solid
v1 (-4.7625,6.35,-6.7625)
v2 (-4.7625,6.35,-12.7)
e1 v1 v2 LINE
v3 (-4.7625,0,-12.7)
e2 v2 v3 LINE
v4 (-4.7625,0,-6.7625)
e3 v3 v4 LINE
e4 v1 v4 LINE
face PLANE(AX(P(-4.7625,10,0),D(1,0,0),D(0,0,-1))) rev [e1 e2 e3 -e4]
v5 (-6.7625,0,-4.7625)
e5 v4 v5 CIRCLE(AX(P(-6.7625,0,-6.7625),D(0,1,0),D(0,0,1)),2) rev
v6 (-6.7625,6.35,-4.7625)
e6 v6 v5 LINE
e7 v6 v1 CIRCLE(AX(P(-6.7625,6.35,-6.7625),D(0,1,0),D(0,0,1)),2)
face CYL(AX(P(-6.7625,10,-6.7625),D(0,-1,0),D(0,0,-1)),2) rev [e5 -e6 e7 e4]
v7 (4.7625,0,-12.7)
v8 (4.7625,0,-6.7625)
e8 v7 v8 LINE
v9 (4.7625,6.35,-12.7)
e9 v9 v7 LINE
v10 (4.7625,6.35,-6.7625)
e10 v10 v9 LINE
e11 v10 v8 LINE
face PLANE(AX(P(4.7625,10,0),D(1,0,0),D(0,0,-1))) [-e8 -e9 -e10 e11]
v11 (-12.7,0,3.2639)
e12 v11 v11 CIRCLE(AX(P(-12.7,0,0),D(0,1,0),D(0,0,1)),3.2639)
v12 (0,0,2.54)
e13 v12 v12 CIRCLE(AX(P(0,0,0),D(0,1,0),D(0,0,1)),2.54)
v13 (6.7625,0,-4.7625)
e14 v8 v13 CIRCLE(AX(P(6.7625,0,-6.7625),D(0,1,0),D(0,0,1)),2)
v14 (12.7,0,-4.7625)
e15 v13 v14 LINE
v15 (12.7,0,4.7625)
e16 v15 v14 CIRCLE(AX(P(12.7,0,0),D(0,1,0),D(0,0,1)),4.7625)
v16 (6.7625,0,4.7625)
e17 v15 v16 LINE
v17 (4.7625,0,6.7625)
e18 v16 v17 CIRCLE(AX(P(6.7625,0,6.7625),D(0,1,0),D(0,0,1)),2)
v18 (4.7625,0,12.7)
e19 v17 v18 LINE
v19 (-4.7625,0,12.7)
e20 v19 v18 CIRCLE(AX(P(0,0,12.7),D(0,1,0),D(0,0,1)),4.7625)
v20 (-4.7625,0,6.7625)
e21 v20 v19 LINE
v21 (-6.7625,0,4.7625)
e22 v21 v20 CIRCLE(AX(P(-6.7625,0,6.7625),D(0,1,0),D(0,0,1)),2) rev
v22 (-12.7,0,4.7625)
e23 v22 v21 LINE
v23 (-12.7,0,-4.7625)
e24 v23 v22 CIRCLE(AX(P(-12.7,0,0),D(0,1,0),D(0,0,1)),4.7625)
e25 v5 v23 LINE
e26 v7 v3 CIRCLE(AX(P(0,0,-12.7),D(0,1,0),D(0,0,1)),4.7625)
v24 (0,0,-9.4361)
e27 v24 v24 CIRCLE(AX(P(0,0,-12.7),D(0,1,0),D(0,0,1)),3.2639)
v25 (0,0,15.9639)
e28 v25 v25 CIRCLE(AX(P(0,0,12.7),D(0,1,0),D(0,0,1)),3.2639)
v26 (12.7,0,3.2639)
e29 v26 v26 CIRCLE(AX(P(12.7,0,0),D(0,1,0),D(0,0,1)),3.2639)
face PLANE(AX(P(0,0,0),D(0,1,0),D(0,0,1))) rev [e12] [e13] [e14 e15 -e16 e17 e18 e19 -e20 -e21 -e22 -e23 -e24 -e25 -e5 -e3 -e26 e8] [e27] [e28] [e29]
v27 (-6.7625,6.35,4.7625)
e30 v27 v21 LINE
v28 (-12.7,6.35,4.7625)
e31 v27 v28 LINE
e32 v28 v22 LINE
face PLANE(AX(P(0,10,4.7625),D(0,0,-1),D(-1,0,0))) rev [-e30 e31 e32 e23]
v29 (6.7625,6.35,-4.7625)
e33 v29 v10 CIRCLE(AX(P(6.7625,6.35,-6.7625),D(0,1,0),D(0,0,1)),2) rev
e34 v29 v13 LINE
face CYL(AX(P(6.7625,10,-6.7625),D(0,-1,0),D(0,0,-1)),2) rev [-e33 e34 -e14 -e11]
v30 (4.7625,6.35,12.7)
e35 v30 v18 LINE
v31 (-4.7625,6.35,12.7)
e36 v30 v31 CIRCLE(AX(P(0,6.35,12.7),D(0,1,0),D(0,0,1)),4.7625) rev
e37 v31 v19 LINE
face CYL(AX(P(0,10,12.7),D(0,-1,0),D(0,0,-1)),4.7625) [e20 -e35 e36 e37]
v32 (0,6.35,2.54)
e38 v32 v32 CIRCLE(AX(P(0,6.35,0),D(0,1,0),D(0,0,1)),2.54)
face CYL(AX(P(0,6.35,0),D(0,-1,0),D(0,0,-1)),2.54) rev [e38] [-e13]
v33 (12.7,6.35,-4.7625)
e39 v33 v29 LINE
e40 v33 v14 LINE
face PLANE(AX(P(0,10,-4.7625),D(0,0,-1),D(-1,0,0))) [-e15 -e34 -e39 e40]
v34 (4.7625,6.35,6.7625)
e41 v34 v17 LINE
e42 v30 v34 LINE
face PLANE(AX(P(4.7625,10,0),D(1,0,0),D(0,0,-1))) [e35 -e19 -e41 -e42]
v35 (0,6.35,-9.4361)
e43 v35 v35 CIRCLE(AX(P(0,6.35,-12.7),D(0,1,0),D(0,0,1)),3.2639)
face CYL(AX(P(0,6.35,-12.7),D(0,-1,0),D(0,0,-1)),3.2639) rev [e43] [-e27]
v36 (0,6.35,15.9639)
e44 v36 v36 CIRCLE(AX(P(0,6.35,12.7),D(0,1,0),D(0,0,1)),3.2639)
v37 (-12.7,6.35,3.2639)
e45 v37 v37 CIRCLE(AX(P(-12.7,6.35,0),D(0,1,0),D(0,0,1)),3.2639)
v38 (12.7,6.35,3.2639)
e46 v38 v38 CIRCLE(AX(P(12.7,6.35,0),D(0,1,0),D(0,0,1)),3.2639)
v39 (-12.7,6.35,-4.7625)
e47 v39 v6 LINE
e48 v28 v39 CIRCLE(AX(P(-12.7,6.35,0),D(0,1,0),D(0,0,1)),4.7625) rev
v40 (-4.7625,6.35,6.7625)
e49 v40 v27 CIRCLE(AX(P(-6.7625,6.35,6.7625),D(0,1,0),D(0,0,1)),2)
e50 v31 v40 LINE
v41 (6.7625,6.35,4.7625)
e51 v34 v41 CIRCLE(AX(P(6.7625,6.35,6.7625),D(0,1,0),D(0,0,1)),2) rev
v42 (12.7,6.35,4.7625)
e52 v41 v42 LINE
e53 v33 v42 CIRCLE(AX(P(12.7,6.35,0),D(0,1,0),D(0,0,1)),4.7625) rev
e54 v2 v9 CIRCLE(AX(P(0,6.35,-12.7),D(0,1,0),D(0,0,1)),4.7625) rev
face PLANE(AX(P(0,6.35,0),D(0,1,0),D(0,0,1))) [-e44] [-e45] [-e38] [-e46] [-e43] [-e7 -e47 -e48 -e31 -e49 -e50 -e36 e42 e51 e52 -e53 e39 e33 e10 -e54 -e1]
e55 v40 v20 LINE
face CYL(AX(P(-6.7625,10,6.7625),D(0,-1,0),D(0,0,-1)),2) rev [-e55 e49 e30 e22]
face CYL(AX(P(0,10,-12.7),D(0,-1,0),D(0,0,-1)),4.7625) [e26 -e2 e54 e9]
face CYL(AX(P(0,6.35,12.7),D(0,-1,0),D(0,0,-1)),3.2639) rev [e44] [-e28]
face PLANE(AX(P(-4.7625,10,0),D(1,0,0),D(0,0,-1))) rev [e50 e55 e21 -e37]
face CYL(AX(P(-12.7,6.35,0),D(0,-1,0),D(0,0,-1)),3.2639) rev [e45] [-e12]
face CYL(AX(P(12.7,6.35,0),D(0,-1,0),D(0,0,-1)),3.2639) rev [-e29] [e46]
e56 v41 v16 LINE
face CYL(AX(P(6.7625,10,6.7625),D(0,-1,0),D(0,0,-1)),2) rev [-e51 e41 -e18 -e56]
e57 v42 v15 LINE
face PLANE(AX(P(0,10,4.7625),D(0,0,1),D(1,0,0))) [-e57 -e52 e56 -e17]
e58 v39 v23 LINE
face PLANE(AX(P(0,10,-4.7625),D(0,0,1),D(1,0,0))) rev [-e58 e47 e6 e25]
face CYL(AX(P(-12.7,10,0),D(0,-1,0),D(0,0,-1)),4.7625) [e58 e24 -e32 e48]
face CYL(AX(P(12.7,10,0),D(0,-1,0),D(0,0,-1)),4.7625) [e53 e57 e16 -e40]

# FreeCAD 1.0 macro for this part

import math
import FreeCAD as App
import Part
import Sketcher

V = App.Vector
Q = App.Units.Quantity

doc = App.newDocument("Part")
body = doc.addObject("PartDesign::Body", "Body")

# Sketch on XZ plane
sketch1 = body.newObject("Sketcher::SketchObject", "Sketch")
sketch1.AttachmentSupport = (doc.getObject("XZ_Plane"), [""])
sketch1.MapMode = "FlatFace"
sketch1.addGeometry(Part.Circle(V(0, 0, 0), V(0, 0, 1), 25.4), False)
sketch1.addGeometry(Part.Circle(V(0, -12.7, 0), V(0, 0, 1), 3.3), False)
sketch1.addGeometry(Part.Circle(V(-12.7, 0, 0), V(0, 0, 1), 3.3), False)
sketch1.addGeometry(Part.Circle(V(12.7, 0, 0), V(0, 0, 1), 3.3), False)
sketch1.addGeometry(Part.Circle(V(0, 0, 0), V(0, 0, 1), 2.5), False)
sketch1.addGeometry(Part.Circle(V(0, 12.7, 0), V(0, 0, 1), 3.3), False)
sketch1.addConstraint(Sketcher.Constraint("Coincident", 0, 3, -1, 1))
sketch1.addConstraint(Sketcher.Constraint("Coincident", 4, 3, -1, 1))
sketch1.addConstraint(Sketcher.Constraint("Equal", 1, 2))
sketch1.addConstraint(Sketcher.Constraint("Equal", 2, 3))
sketch1.addConstraint(Sketcher.Constraint("Equal", 3, 5))
sketch1.addConstraint(Sketcher.Constraint("Symmetric", 2, 3, 3, 3, -1, 1))
sketch1.addConstraint(Sketcher.Constraint("Symmetric", 1, 3, 5, 3, -1, 1))
sketch1.addConstraint(Sketcher.Constraint("PointOnObject", 1, 3, -2))
sketch1.addConstraint(Sketcher.Constraint("PointOnObject", 2, 3, -1))
sketch1.addConstraint(Sketcher.Constraint("Diameter", 0, Q("2 in")))
sketch1.addConstraint(Sketcher.Constraint("Diameter", 4, Q("0.2 in")))
sketch1.addConstraint(Sketcher.Constraint("Diameter", 1, Q("0.257 in")))
sketch1.addConstraint(Sketcher.Constraint("DistanceX", 2, 3, 3, 3, Q("1 in")))
sketch1.addConstraint(Sketcher.Constraint("DistanceY", 1, 3, 5, 3, Q("1 in")))
pad1 = body.newObject("PartDesign::Pad", "Pad")
pad1.Profile = sketch1
pad1.Length = Q("0.25 in")
pad1.Reversed = True

# Sketch on XZ plane
sketch2 = body.newObject("Sketcher::SketchObject", "Sketch001")
sketch2.AttachmentSupport = (doc.getObject("XZ_Plane"), [""])
sketch2.MapMode = "FlatFace"
sketch2.addGeometry(Part.Circle(V(0, 0, 0), V(0, 0, 1), 25.4), False)
sketch2.addGeometry(Part.LineSegment(V(-4.8, -6.8, 0), V(-4.8, -12.7, 0)), False)
sketch2.addGeometry(Part.ArcOfCircle(Part.Circle(V(0, -12.7, 0), V(0, 0, 1), 4.8), math.radians(180), math.radians(360)), False)
sketch2.addGeometry(Part.LineSegment(V(4.8, -12.7, 0), V(4.8, -6.8, 0)), False)
sketch2.addGeometry(Part.ArcOfCircle(Part.Circle(V(6.8, -6.8, 0), V(0, 0, 1), 2), math.radians(90), math.radians(180)), False)
sketch2.addGeometry(Part.LineSegment(V(6.8, -4.8, 0), V(12.7, -4.8, 0)), False)
sketch2.addGeometry(Part.ArcOfCircle(Part.Circle(V(12.7, 0, 0), V(0, 0, 1), 4.8), math.radians(-90), math.radians(0)), False)
sketch2.addGeometry(Part.ArcOfCircle(Part.Circle(V(12.7, 0, 0), V(0, 0, 1), 4.8), math.radians(0), math.radians(90)), False)
sketch2.addGeometry(Part.LineSegment(V(12.7, 4.8, 0), V(6.8, 4.8, 0)), False)
sketch2.addGeometry(Part.ArcOfCircle(Part.Circle(V(6.8, 6.8, 0), V(0, 0, 1), 2), math.radians(-180), math.radians(-90)), False)
sketch2.addGeometry(Part.LineSegment(V(4.8, 6.8, 0), V(4.8, 12.7, 0)), False)
sketch2.addGeometry(Part.ArcOfCircle(Part.Circle(V(0, 12.7, 0), V(0, 0, 1), 4.8), math.radians(0), math.radians(180)), False)
sketch2.addGeometry(Part.LineSegment(V(-4.8, 12.7, 0), V(-4.8, 6.8, 0)), False)
sketch2.addGeometry(Part.ArcOfCircle(Part.Circle(V(-6.8, 6.8, 0), V(0, 0, 1), 2), math.radians(-90), math.radians(0)), False)
sketch2.addGeometry(Part.LineSegment(V(-6.8, 4.8, 0), V(-12.7, 4.8, 0)), False)
sketch2.addGeometry(Part.ArcOfCircle(Part.Circle(V(-12.7, 0, 0), V(0, 0, 1), 4.8), math.radians(90), math.radians(270)), False)
sketch2.addGeometry(Part.LineSegment(V(-12.7, -4.8, 0), V(-6.8, -4.8, 0)), False)
sketch2.addGeometry(Part.ArcOfCircle(Part.Circle(V(-6.8, -6.8, 0), V(0, 0, 1), 2), math.radians(0), math.radians(90)), False)
sketch2.addConstraint(Sketcher.Constraint("Tangent", 1, 2, 2, 1))
sketch2.addConstraint(Sketcher.Constraint("Tangent", 2, 2, 3, 1))
sketch2.addConstraint(Sketcher.Constraint("Tangent", 3, 2, 4, 2))
sketch2.addConstraint(Sketcher.Constraint("Tangent", 4, 1, 5, 1))
sketch2.addConstraint(Sketcher.Constraint("Tangent", 5, 2, 6, 1))
sketch2.addConstraint(Sketcher.Constraint("Tangent", 6, 2, 7, 1))
sketch2.addConstraint(Sketcher.Constraint("Tangent", 7, 2, 8, 1))
sketch2.addConstraint(Sketcher.Constraint("Tangent", 8, 2, 9, 2))
sketch2.addConstraint(Sketcher.Constraint("Tangent", 9, 1, 10, 1))
sketch2.addConstraint(Sketcher.Constraint("Tangent", 10, 2, 11, 1))
sketch2.addConstraint(Sketcher.Constraint("Tangent", 11, 2, 12, 1))
sketch2.addConstraint(Sketcher.Constraint("Tangent", 12, 2, 13, 2))
sketch2.addConstraint(Sketcher.Constraint("Tangent", 13, 1, 14, 1))
sketch2.addConstraint(Sketcher.Constraint("Tangent", 14, 2, 15, 1))
sketch2.addConstraint(Sketcher.Constraint("Tangent", 15, 2, 16, 1))
sketch2.addConstraint(Sketcher.Constraint("Tangent", 16, 2, 17, 2))
sketch2.addConstraint(Sketcher.Constraint("Tangent", 17, 1, 1, 1))
sketch2.addConstraint(Sketcher.Constraint("Vertical", 1))
sketch2.addConstraint(Sketcher.Constraint("Vertical", 3))
sketch2.addConstraint(Sketcher.Constraint("Horizontal", 5))
sketch2.addConstraint(Sketcher.Constraint("Horizontal", 8))
sketch2.addConstraint(Sketcher.Constraint("Vertical", 10))
sketch2.addConstraint(Sketcher.Constraint("Vertical", 12))
sketch2.addConstraint(Sketcher.Constraint("Horizontal", 14))
sketch2.addConstraint(Sketcher.Constraint("Horizontal", 16))
sketch2.addConstraint(Sketcher.Constraint("Coincident", 0, 3, -1, 1))
sketch2.addConstraint(Sketcher.Constraint("Equal", 2, 6))
sketch2.addConstraint(Sketcher.Constraint("Equal", 6, 7))
sketch2.addConstraint(Sketcher.Constraint("Equal", 4, 9))
sketch2.addConstraint(Sketcher.Constraint("Equal", 7, 11))
sketch2.addConstraint(Sketcher.Constraint("Equal", 9, 13))
sketch2.addConstraint(Sketcher.Constraint("Equal", 11, 15))
sketch2.addConstraint(Sketcher.Constraint("Equal", 13, 17))
sketch2.addConstraint(Sketcher.Constraint("Symmetric", 2, 3, 11, 3, -1, 1))
sketch2.addConstraint(Sketcher.Constraint("Symmetric", 6, 3, 15, 3, -1, 1))
sketch2.addConstraint(Sketcher.Constraint("Symmetric", 9, 3, 13, 3, -2))
sketch2.addConstraint(Sketcher.Constraint("PointOnObject", 6, 2, -1))
sketch2.addConstraint(Sketcher.Constraint("Equal", 16, 1))
sketch2.addConstraint(Sketcher.Constraint("Diameter", 0, Q("2 in")))
sketch2.addConstraint(Sketcher.Constraint("Radius", 2, Q("0.1875 in")))
sketch2.addConstraint(Sketcher.Constraint("DistanceY", 2, 3, -1, 1, Q("0.5 in")))
sketch2.addConstraint(Sketcher.Constraint("Radius", 4, 2.0))
pocket1 = body.newObject("PartDesign::Pocket", "Pocket")
pocket1.Profile = sketch2
pocket1.Length = 10

doc.recompute()
